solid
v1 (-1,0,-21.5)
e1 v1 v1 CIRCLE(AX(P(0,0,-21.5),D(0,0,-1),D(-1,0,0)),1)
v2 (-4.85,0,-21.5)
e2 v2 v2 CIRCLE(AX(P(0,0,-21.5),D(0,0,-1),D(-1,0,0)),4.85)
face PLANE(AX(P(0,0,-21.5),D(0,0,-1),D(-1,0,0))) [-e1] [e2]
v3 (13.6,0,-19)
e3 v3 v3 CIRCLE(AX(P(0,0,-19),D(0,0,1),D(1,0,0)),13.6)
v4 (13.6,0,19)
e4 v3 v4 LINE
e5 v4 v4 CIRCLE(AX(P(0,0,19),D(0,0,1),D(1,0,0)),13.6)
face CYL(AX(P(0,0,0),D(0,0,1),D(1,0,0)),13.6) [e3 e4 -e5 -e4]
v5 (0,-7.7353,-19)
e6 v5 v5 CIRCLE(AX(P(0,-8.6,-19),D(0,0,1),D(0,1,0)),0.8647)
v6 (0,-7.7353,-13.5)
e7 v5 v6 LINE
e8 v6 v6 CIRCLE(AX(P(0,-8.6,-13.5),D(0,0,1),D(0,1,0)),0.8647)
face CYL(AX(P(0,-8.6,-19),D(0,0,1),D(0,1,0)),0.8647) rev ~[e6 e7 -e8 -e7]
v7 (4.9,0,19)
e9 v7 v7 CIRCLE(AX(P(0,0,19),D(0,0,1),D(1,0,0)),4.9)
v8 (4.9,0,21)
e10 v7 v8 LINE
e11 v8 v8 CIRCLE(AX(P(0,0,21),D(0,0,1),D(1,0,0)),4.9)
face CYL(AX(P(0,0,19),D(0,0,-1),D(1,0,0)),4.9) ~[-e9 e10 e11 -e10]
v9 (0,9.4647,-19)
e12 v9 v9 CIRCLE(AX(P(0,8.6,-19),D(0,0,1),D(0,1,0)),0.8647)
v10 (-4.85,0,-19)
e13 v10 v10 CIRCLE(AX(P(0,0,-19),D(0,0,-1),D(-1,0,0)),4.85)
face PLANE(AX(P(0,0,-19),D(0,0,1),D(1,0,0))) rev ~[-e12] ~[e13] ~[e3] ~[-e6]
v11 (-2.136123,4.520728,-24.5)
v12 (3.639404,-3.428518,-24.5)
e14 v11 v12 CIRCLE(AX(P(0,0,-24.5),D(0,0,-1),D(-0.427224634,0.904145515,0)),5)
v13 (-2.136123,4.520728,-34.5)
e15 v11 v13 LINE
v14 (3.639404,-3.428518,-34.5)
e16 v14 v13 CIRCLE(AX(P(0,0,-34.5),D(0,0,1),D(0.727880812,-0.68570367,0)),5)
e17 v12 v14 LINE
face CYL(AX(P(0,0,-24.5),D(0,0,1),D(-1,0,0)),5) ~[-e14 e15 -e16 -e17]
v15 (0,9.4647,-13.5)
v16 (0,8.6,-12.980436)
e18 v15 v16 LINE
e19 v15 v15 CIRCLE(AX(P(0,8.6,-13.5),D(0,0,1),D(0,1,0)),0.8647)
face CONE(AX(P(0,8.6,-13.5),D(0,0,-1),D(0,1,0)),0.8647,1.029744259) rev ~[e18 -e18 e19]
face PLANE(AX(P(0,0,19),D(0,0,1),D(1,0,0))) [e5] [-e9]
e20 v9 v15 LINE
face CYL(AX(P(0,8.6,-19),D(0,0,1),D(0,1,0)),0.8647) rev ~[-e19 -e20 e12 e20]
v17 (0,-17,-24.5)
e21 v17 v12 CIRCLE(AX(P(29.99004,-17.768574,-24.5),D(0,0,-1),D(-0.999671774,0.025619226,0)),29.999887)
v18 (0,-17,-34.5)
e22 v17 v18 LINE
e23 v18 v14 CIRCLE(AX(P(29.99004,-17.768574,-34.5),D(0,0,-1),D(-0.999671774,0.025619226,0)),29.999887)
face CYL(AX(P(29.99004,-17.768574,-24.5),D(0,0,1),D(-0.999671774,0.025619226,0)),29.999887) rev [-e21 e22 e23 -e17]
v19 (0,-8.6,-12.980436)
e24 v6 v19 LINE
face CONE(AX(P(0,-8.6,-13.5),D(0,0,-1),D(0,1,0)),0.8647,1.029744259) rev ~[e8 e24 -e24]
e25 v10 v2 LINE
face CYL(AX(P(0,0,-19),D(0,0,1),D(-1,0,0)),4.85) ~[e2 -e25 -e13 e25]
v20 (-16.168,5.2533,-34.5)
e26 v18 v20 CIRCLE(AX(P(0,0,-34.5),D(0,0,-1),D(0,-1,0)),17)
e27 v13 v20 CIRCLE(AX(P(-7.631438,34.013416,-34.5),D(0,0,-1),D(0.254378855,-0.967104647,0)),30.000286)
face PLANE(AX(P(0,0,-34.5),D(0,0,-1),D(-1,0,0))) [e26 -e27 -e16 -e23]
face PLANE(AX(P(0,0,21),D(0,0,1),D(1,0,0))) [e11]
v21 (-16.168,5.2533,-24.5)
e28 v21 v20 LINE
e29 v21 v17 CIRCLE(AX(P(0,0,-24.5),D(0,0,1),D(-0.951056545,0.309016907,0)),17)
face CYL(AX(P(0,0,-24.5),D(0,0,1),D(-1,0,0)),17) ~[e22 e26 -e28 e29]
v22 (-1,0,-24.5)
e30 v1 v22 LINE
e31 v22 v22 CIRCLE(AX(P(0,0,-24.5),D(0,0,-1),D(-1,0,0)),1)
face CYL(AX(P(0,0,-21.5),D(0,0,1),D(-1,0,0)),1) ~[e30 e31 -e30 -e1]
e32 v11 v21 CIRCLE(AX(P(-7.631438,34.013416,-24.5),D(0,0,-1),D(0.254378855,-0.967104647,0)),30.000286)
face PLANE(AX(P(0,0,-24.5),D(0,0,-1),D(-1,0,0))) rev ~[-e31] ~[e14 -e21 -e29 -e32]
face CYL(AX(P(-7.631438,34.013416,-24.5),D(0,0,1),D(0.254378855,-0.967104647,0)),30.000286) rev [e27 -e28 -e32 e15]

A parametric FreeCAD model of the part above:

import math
import FreeCAD as App
import Part
import Sketcher

V = App.Vector
Q = App.Units.Quantity

doc = App.newDocument("Part")
params = doc.addObject("Spreadsheet::Sheet", "Params")
for row, (alias, value) in enumerate([
    ("sketch1_diameter", "27.2 mm"),
    ("pad1_length", "38 mm"),
    ("sketch2_diameter", "9.8 mm"),
    ("pad2_length", "2 mm"),
    ("sketch3_diameter", "9.7 mm"),
    ("pad3_length", "2.5 mm"),
    ("sketch4_diameter", "2 mm"),
    ("pad4_length", "3 mm"),
    ("sketch5_radius", "30 mm"),
    ("sketch5_radius2", "17 mm"),
    ("sketch5_radius3", "5 mm"),
    ("pad5_length", "10 mm"),
    ("hole_diameter", "1.7294 mm"),
    ("hole_depth", "5.5 mm"),
], start=1):
    params.set(f"A{row}", alias)
    params.set(f"B{row}", "=" + value)
    params.setAlias(f"B{row}", alias)

body = doc.addObject("PartDesign::Body", "Body")

# Sketch on XY plane
sketch1 = doc.addObject("Sketcher::SketchObject", "Sketch")
body.addObject(sketch1)
sketch1.AttachmentSupport = (doc.XY_Plane, [""])
sketch1.MapMode = "FlatFace"
sketch1.addGeometry(Part.Circle(V(0, 0, 0), V(0, 0, 1), 14), False)
sketch1.addConstraint([
    Sketcher.Constraint("Coincident", 0, 3, -1, 1),
    Sketcher.Constraint("Diameter", 0, Q("27.2 mm")),
])
sketch1.setExpression("Constraints[1]", "Params.sketch1_diameter")
pad1 = doc.addObject("PartDesign::Pad", "Pad")
body.addObject(pad1)
pad1.Profile = sketch1
pad1.setExpression("Length", "Params.pad1_length")
pad1.Midplane = True

# Sketch on XY plane
sketch2 = doc.addObject("Sketcher::SketchObject", "Sketch001")
body.addObject(sketch2)
sketch2.AttachmentSupport = (doc.XY_Plane, [""])
sketch2.MapMode = "FlatFace"
sketch2.AttachmentOffset = App.Placement(V(0, 0, 19), App.Rotation())
sketch2.addGeometry(Part.Circle(V(0, 0, 0), V(0, 0, 1), 4.9), False)
sketch2.addConstraint([
    Sketcher.Constraint("Coincident", 0, 3, -1, 1),
    Sketcher.Constraint("Diameter", 0, Q("9.8 mm")),
])
sketch2.setExpression("Constraints[1]", "Params.sketch2_diameter")
pad2 = doc.addObject("PartDesign::Pad", "Pad001")
body.addObject(pad2)
pad2.Profile = sketch2
pad2.setExpression("Length", "Params.pad2_length")

# Sketch on XY plane
sketch3 = doc.addObject("Sketcher::SketchObject", "Sketch002")
body.addObject(sketch3)
sketch3.AttachmentSupport = (doc.XY_Plane, [""])
sketch3.MapMode = "FlatFace"
sketch3.AttachmentOffset = App.Placement(V(0, 0, -19), App.Rotation())
sketch3.addGeometry(Part.Circle(V(0, 0, 0), V(0, 0, 1), 4.8), False)
sketch3.addConstraint([
    Sketcher.Constraint("Coincident", 0, 3, -1, 1),
    Sketcher.Constraint("Diameter", 0, Q("9.7 mm")),
])
sketch3.setExpression("Constraints[1]", "Params.sketch3_diameter")
pad3 = doc.addObject("PartDesign::Pad", "Pad002")
body.addObject(pad3)
pad3.Profile = sketch3
pad3.setExpression("Length", "Params.pad3_length")
pad3.Reversed = True

# Sketch on XY plane
sketch4 = doc.addObject("Sketcher::SketchObject", "Sketch003")
body.addObject(sketch4)
sketch4.AttachmentSupport = (doc.XY_Plane, [""])
sketch4.MapMode = "FlatFace"
sketch4.AttachmentOffset = App.Placement(V(0, 0, -21.5), App.Rotation())
sketch4.addGeometry(Part.Circle(V(0, 0, 0), V(0, 0, 1), 1), False)
sketch4.addConstraint([
    Sketcher.Constraint("Coincident", 0, 3, -1, 1),
    Sketcher.Constraint("Diameter", 0, Q("2 mm")),
])
sketch4.setExpression("Constraints[1]", "Params.sketch4_diameter")
pad4 = doc.addObject("PartDesign::Pad", "Pad003")
body.addObject(pad4)
pad4.Profile = sketch4
pad4.setExpression("Length", "Params.pad4_length")
pad4.Reversed = True

# Sketch on XY plane
sketch5 = doc.addObject("Sketcher::SketchObject", "Sketch004")
body.addObject(sketch5)
sketch5.AttachmentSupport = (doc.XY_Plane, [""])
sketch5.MapMode = "FlatFace"
sketch5.AttachmentOffset = App.Placement(V(0, 0, -24.5), App.Rotation())
sketch5.addGeometry([
    Part.ArcOfCircle(Part.Circle(V(30, -18, 0), V(0, 0, 1), 30), math.radians(151), math.radians(179)),
    Part.ArcOfCircle(Part.Circle(V(0, 0, 0), V(0, 0, 1), 17), math.radians(162), math.radians(270)),
    Part.ArcOfCircle(Part.Circle(V(-8, 34, 0), V(0, 0, 1), 30), math.radians(-107), math.radians(-79)),
    Part.ArcOfCircle(Part.Circle(V(0, 0, 0), V(0, 0, 1), 5), math.radians(-43), math.radians(115)),
], False)
sketch5.addConstraint([
    Sketcher.Constraint("Coincident", 0, 2, 1, 2),
    Sketcher.Constraint("Coincident", 1, 1, 2, 1),
    Sketcher.Constraint("Coincident", 2, 2, 3, 2),
    Sketcher.Constraint("Coincident", 3, 1, 0, 1),
    Sketcher.Constraint("Coincident", 1, 3, -1, 1),
    Sketcher.Constraint("Coincident", 3, 3, -1, 1),
    Sketcher.Constraint("Equal", 0, 2),
    Sketcher.Constraint("PointOnObject", 0, 2, -2),
    Sketcher.Constraint("Radius", 0, Q("30 mm")),
    Sketcher.Constraint("Radius", 1, Q("17 mm")),
    Sketcher.Constraint("Radius", 3, Q("5 mm")),
    Sketcher.Constraint("DistanceY", -1, 1, 2, 3, Q("34.013 mm")),
    Sketcher.Constraint("DistanceX", 1, 1, -1, 1, Q("16.168 mm")),
    Sketcher.Constraint("DistanceY", 0, 3, 1, 1, Q("23.022 mm")),
])
sketch5.setExpression("Constraints[8]", "Params.sketch5_radius")
sketch5.setExpression("Constraints[9]", "Params.sketch5_radius2")
sketch5.setExpression("Constraints[10]", "Params.sketch5_radius3")
pad5 = doc.addObject("PartDesign::Pad", "Pad004")
body.addObject(pad5)
pad5.Profile = sketch5
pad5.setExpression("Length", "Params.pad5_length")
pad5.Reversed = True

# Sketch on XY plane
sketch6 = doc.addObject("Sketcher::SketchObject", "Sketch005")
body.addObject(sketch6)
sketch6.AttachmentSupport = (doc.XY_Plane, [""])
sketch6.MapMode = "FlatFace"
sketch6.AttachmentOffset = App.Placement(V(0, 0, -19), App.Rotation())
sketch6.addGeometry([
    Part.Circle(V(0, 8.6, 0), V(0, 0, 1), 0.9),
    Part.Circle(V(0, -8.6, 0), V(0, 0, 1), 0.9),
], False)
sketch6.addConstraint([
    Sketcher.Constraint("Equal", 0, 1),
    Sketcher.Constraint("Symmetric", 0, 3, 1, 3, -1, 1),
    Sketcher.Constraint("PointOnObject", 0, 3, -2),
    Sketcher.Constraint("Diameter", 0, Q("1.7294 mm")),
    Sketcher.Constraint("DistanceY", -1, 1, 0, 3, Q("8.6 mm")),
])
doc.recompute()
hole = doc.addObject("PartDesign::Hole", "Hole")
body.addObject(hole)
hole.Profile = sketch6
hole.ThreadType = "None"
hole.setExpression("Diameter", "Params.hole_diameter")
hole.DepthType = "Dimension"
hole.setExpression("Depth", "Params.hole_depth")
hole.DrillPoint = "Angled"
hole.DrillPointAngle = 118
hole.Reversed = True

doc.recompute()
